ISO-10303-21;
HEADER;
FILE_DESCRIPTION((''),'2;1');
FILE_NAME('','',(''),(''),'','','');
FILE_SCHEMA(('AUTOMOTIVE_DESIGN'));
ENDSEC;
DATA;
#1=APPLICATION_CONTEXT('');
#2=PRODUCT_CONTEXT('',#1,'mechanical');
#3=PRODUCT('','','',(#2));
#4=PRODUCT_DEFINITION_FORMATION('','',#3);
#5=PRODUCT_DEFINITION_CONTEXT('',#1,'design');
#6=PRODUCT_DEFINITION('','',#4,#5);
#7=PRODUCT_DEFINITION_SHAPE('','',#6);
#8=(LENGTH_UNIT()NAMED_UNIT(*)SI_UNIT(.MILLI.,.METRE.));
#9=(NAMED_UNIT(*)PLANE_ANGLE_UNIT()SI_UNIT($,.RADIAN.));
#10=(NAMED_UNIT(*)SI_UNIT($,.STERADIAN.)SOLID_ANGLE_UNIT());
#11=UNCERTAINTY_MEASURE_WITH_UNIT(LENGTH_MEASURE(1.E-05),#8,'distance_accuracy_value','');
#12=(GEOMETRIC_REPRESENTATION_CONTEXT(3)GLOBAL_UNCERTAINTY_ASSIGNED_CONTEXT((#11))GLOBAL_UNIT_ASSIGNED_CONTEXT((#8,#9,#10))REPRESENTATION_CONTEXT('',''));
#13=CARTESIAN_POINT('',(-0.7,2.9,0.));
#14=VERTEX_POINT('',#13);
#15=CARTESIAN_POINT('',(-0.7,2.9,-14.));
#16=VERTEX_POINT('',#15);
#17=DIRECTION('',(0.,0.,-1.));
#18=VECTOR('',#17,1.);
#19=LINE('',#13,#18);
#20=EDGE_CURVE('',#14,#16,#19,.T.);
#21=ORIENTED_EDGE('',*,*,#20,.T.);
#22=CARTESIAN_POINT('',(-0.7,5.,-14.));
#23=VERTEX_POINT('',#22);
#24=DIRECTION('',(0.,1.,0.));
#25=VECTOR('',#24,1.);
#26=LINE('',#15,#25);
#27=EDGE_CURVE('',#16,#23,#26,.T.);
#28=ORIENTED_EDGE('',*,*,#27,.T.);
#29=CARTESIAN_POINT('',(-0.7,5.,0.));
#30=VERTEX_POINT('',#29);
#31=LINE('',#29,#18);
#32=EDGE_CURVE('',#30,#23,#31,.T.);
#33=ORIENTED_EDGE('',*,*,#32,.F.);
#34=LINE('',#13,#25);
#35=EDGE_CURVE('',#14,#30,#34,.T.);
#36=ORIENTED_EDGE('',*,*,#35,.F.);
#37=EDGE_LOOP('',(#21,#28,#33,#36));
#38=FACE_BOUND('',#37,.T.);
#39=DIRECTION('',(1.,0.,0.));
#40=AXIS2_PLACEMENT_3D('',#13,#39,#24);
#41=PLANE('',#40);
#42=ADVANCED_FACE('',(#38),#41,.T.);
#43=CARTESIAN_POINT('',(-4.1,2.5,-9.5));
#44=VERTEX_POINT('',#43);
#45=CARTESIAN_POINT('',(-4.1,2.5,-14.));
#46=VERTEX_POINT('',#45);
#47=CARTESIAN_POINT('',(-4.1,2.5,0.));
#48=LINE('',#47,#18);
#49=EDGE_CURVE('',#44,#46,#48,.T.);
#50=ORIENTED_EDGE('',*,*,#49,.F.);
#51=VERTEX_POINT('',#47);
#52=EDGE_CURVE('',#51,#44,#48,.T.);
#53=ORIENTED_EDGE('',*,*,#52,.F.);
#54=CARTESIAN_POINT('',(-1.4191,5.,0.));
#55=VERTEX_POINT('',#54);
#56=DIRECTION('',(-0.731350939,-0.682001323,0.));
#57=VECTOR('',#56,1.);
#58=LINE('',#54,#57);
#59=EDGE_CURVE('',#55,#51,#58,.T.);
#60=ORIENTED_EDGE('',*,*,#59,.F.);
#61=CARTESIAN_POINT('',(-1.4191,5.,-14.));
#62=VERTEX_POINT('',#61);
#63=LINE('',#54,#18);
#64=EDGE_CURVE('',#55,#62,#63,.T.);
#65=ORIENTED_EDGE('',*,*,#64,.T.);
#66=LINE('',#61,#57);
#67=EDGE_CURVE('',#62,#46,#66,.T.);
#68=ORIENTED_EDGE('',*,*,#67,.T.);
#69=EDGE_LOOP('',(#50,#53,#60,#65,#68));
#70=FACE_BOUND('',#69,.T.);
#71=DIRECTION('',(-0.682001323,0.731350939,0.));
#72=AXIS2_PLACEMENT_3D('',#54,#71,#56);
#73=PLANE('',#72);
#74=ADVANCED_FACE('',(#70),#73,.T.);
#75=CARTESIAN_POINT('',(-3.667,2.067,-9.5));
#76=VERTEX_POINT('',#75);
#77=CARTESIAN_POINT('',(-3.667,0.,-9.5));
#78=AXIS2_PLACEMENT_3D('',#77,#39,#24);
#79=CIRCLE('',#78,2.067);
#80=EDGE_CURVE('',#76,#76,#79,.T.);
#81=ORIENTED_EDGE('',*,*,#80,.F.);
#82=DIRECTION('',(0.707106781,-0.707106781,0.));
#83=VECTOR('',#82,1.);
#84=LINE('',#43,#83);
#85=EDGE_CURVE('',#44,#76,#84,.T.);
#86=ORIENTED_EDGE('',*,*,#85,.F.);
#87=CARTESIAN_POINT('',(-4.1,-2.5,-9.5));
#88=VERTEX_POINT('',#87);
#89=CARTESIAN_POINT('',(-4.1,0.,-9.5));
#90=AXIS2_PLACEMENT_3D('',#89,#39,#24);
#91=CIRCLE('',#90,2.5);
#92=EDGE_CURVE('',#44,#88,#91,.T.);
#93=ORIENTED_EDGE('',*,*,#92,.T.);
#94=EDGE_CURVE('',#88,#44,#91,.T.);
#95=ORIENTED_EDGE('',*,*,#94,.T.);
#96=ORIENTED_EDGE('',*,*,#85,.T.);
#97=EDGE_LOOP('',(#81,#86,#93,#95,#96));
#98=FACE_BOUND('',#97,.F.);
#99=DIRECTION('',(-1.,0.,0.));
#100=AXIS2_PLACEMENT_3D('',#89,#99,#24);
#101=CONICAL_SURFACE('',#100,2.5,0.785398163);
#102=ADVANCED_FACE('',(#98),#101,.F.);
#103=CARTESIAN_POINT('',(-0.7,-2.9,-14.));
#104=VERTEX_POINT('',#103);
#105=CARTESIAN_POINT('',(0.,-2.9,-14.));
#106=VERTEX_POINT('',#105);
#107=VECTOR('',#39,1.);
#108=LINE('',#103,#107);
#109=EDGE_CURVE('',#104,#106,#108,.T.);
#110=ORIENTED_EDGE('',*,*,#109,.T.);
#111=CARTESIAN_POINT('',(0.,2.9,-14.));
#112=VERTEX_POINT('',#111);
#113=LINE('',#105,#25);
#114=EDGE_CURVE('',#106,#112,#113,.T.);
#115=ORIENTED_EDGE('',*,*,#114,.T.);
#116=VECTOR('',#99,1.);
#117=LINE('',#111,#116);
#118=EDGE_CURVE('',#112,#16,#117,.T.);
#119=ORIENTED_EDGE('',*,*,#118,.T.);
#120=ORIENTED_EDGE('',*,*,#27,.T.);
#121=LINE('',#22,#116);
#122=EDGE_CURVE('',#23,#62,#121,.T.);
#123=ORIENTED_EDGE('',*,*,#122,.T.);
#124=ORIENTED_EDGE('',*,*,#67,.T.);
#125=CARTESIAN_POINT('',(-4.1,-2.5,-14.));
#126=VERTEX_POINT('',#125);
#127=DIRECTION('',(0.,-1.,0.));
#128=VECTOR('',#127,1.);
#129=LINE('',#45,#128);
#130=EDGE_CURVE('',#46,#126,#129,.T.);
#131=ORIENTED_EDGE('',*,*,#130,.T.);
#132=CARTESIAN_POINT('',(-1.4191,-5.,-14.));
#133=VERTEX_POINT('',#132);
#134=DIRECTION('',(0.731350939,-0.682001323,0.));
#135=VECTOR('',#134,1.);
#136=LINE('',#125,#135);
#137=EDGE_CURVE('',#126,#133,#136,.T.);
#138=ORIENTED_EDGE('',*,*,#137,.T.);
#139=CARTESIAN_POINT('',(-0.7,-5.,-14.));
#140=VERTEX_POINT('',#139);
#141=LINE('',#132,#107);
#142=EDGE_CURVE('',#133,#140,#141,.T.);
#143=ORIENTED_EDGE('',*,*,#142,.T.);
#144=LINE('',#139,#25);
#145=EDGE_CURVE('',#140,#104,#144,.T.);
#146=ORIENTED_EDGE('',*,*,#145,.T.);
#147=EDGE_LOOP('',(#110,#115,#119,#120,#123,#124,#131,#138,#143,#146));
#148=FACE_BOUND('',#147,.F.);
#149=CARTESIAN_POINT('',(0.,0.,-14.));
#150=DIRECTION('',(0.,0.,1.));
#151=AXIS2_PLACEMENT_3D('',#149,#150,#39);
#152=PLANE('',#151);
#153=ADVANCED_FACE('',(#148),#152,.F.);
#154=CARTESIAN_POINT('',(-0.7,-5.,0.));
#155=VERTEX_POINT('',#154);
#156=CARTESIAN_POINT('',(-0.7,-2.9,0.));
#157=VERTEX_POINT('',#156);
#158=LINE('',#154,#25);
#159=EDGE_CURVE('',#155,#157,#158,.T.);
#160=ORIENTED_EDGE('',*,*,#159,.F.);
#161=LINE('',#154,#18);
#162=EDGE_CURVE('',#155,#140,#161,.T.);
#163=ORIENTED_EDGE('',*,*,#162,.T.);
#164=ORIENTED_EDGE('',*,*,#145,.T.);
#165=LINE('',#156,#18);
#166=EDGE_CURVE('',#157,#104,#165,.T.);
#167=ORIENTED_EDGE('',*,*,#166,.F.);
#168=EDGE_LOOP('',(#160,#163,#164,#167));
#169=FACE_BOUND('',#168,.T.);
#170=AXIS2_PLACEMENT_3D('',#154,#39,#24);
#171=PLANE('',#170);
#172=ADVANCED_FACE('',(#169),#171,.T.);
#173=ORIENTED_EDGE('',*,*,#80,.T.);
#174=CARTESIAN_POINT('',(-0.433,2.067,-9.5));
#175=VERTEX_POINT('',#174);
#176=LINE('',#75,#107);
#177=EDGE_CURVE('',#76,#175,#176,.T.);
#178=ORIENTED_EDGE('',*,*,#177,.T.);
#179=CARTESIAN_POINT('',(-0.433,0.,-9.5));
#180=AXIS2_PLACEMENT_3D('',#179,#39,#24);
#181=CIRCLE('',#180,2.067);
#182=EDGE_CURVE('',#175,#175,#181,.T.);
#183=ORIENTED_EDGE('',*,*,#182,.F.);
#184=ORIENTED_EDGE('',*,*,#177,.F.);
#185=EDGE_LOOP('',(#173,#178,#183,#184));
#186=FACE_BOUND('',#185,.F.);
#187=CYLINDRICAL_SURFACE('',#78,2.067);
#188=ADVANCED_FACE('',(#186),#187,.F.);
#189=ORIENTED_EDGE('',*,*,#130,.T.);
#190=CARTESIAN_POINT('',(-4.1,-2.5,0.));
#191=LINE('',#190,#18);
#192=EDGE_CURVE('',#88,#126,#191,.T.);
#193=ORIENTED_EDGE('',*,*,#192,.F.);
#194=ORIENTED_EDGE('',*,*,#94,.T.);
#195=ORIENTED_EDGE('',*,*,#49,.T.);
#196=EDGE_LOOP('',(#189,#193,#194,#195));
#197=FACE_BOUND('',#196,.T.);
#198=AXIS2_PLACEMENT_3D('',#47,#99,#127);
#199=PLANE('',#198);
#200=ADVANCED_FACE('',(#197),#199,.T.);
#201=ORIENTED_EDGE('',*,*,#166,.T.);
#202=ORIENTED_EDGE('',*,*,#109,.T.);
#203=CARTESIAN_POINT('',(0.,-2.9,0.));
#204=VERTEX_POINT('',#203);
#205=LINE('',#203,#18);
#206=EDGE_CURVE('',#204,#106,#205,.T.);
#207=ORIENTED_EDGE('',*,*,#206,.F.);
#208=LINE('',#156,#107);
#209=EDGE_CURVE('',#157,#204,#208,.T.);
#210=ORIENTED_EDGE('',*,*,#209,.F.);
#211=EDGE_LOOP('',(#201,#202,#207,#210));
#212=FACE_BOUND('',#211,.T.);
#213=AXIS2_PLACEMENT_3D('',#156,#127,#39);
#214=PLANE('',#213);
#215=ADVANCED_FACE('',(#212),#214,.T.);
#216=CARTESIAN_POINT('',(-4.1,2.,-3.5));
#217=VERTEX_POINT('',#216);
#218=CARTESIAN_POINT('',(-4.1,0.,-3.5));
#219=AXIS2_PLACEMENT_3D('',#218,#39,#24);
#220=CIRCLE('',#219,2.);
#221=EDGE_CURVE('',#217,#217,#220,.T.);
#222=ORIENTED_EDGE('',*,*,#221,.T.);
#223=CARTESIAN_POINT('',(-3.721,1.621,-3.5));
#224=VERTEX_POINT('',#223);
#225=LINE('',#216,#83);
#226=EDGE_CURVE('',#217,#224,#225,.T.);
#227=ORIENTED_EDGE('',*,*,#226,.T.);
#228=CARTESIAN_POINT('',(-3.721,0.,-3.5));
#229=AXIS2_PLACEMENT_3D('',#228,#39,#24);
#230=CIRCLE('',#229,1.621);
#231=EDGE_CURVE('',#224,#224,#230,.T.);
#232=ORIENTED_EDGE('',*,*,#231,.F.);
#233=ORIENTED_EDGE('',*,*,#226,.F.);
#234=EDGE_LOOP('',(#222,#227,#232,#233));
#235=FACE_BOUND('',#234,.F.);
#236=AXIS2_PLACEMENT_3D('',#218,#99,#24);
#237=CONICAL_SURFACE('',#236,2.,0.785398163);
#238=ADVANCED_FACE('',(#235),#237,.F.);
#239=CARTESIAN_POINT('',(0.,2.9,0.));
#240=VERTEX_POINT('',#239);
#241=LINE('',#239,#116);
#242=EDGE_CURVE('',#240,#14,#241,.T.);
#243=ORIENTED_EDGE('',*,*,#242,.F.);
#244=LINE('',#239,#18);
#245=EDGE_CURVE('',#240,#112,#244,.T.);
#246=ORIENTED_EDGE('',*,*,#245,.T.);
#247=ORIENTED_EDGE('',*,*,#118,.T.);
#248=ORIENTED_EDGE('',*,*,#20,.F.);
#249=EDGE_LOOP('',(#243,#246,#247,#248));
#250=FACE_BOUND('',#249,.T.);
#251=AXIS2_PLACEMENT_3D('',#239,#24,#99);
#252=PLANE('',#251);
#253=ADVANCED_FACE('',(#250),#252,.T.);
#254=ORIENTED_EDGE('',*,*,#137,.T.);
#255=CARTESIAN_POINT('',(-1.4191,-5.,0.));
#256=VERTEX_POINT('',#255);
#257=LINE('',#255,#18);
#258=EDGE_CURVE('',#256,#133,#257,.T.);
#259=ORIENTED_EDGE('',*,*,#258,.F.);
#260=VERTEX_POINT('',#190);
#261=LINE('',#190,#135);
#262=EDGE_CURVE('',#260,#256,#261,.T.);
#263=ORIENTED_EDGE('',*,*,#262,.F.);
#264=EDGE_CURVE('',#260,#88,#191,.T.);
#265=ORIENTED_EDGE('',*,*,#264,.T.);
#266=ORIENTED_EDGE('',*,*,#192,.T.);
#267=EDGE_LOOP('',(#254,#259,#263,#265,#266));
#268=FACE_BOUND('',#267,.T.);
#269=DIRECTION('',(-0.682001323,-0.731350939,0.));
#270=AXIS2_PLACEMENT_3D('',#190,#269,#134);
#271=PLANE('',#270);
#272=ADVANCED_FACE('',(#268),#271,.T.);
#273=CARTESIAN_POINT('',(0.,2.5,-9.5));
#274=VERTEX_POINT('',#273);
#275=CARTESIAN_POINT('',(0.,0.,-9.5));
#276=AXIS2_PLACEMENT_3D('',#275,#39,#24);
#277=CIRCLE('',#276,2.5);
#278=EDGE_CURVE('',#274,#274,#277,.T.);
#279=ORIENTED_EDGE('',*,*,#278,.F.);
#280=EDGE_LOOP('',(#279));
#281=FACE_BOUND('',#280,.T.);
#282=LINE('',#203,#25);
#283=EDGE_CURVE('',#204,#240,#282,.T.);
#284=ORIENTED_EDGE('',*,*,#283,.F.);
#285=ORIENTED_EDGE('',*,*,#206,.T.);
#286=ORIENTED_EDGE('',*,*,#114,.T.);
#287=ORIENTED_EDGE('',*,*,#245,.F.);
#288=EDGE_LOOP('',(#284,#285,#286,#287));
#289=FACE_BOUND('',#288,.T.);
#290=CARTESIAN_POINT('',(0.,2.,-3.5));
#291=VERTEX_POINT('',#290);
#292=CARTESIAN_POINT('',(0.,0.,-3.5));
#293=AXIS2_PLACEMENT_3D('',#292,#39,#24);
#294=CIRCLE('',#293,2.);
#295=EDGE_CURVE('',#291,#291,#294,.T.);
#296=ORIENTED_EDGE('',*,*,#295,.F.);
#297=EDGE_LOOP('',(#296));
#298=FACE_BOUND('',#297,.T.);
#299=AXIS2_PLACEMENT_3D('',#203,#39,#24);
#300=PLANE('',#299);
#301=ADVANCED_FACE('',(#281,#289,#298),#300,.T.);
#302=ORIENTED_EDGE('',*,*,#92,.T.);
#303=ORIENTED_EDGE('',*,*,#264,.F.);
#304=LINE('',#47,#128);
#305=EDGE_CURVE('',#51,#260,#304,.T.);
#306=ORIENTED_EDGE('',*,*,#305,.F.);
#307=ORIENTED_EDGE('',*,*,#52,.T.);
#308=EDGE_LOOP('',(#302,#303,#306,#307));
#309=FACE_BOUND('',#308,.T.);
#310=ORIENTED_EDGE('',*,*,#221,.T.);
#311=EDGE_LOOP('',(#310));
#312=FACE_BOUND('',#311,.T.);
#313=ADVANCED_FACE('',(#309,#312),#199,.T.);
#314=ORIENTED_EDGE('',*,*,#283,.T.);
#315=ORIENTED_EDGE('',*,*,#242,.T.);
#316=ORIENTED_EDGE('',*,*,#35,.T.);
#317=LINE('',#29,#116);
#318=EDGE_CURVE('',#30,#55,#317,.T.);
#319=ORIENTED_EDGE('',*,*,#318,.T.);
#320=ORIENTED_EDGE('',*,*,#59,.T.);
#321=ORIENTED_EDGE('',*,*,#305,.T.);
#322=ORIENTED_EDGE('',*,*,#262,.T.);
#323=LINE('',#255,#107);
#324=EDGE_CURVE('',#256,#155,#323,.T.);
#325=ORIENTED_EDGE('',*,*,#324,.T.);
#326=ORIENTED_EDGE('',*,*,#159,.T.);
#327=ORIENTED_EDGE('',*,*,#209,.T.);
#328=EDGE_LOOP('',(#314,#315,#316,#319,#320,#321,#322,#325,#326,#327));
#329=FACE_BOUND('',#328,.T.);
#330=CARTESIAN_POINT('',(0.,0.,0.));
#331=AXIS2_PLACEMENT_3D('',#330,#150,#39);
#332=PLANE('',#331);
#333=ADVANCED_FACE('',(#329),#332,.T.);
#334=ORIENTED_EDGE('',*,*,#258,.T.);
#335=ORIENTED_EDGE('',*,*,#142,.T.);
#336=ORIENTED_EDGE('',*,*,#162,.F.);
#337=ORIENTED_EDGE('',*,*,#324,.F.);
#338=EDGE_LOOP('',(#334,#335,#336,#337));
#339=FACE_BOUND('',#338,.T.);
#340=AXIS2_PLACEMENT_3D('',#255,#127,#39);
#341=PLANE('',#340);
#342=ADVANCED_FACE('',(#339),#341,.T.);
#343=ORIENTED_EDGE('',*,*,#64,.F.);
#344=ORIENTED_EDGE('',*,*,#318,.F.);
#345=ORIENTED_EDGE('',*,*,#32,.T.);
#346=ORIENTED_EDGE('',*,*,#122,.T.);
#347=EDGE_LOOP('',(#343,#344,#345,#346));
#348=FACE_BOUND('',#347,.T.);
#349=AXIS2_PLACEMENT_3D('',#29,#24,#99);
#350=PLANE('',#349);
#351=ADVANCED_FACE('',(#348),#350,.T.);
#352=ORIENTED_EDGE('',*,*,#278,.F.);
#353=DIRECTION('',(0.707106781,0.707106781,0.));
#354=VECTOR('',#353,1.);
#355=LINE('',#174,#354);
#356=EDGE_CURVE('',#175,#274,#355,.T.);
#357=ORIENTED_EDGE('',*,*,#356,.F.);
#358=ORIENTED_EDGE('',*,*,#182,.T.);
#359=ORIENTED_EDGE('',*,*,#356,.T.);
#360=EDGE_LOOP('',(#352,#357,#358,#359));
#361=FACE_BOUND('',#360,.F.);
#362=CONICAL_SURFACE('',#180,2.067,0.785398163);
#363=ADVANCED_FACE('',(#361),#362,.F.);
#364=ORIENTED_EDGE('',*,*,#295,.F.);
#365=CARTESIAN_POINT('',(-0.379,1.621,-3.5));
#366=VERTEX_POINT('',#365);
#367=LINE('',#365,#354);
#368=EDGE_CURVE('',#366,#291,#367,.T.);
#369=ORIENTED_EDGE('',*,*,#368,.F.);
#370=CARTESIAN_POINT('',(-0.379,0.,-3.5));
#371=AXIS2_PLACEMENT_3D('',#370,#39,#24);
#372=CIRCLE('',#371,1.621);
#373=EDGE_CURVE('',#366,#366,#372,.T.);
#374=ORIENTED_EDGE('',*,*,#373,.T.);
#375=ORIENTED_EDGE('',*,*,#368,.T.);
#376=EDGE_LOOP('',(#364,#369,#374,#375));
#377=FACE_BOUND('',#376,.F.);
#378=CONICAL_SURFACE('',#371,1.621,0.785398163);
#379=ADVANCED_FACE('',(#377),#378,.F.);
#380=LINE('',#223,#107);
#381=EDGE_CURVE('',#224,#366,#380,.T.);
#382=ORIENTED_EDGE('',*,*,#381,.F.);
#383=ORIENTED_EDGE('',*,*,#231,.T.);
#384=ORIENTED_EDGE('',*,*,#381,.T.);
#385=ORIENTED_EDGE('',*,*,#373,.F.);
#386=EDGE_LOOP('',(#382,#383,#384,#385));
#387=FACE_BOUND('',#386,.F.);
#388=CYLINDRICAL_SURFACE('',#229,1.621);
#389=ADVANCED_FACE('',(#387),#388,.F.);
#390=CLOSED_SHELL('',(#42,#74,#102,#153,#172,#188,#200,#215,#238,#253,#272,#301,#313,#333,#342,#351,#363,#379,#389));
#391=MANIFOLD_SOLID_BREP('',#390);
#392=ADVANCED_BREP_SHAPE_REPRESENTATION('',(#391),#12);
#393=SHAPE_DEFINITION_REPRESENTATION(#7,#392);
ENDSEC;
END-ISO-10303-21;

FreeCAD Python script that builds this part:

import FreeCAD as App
import Part
import Sketcher
from FreeCAD import Vector
Q = App.Units.Quantity


def add_polygon(sketch, points):
    """Adds a closed chain of lines whose ends are joined by coincident constraints."""
    first, n = sketch.GeometryCount, len(points)
    for a, b in zip(points, points[1:] + points[:1]):
        sketch.addGeometry(Part.LineSegment(App.Vector(*a, 0), App.Vector(*b, 0)), False)
    for i in range(n):
        sketch.addConstraint(Sketcher.Constraint("Coincident", first + i, 2, first + (i + 1) % n, 1))

doc = App.newDocument("Part")
body = doc.addObject("PartDesign::Body", "Body")

# Sketch on XY plane
sketch1 = doc.addObject("Sketcher::SketchObject", "Sketch")
body.addObject(sketch1)
sketch1.AttachmentSupport = (doc.XY_Plane, [""])
sketch1.MapMode = "FlatFace"
add_polygon(sketch1, [(-4.1, 2.5), (-4.1, -2.5), (-1.4, -5), (-0.7, -5), (-0.7, -2.9), (0, -2.9), (0, 2.9), (-0.7, 2.9), (-0.7, 5), (-1.4, 5)])  # lines 0-9
sketch1.addConstraint(Sketcher.Constraint("Vertical", 0))
sketch1.addConstraint(Sketcher.Constraint("Horizontal", 2))
sketch1.addConstraint(Sketcher.Constraint("Vertical", 3))
sketch1.addConstraint(Sketcher.Constraint("Horizontal", 4))
sketch1.addConstraint(Sketcher.Constraint("Vertical", 5))
sketch1.addConstraint(Sketcher.Constraint("Horizontal", 6))
sketch1.addConstraint(Sketcher.Constraint("Vertical", 7))
sketch1.addConstraint(Sketcher.Constraint("Horizontal", 8))
sketch1.addConstraint(Sketcher.Constraint("Symmetric", 4, 2, 5, 2, -1, 1))
sketch1.addConstraint(Sketcher.Constraint("Symmetric", 2, 2, 7, 2, -1))
sketch1.addConstraint(Sketcher.Constraint("Vertical", 1, 2, 8, 2))
sketch1.addConstraint(Sketcher.Constraint("Equal", 1, 9))
sketch1.addConstraint(Sketcher.Constraint("DistanceY", 0, 2, 0, 1, 5.0))
sketch1.addConstraint(Sketcher.Constraint("Angle", 1, Q("-43.0002 deg")))
sketch1.addConstraint(Sketcher.Constraint("DistanceX", 4, 1, 4, 2, 0.7))
sketch1.addConstraint(Sketcher.Constraint("DistanceY", 3, 1, 3, 2, 2.1))
sketch1.addConstraint(Sketcher.Constraint("DistanceY", 5, 1, 5, 2, 5.8))
sketch1.addConstraint(Sketcher.Constraint("DistanceX", 0, 2, -1, 1, 4.1))
pad1 = doc.addObject("PartDesign::Pad", "Pad")
body.addObject(pad1)
pad1.Profile = sketch1
pad1.Length = 14
pad1.Reversed = True

# Sketch on XY plane
sketch2 = doc.addObject("Sketcher::SketchObject", "Sketch001")
body.addObject(sketch2)
sketch2.AttachmentSupport = (doc.XY_Plane, [""])
sketch2.MapMode = "FlatFace"
sketch2.AttachmentOffset = App.Placement(Vector(0, 0, -3.5), App.Rotation())
add_polygon(sketch2, [(-4.1, 0), (0, 0), (0, 2), (-0.4, 1.6), (-3.7, 1.6), (-4.1, 2)])  # lines 0-5
sketch2.addConstraint(Sketcher.Constraint("Horizontal", 0))
sketch2.addConstraint(Sketcher.Constraint("Vertical", 1))
sketch2.addConstraint(Sketcher.Constraint("Horizontal", 3))
sketch2.addConstraint(Sketcher.Constraint("Vertical", 5))
sketch2.addConstraint(Sketcher.Constraint("Coincident", 0, 2, -1, 1))
sketch2.addConstraint(Sketcher.Constraint("Perpendicular", 2, 4))
sketch2.addConstraint(Sketcher.Constraint("Horizontal", 1, 2, 4, 2))
sketch2.addConstraint(Sketcher.Constraint("Equal", 2, 4))
sketch2.addConstraint(Sketcher.Constraint("DistanceY", 1, 1, 1, 2, 2.0))
sketch2.addConstraint(Sketcher.Constraint("DistanceX", 0, 1, 0, 2, 4.1))
sketch2.addConstraint(Sketcher.Constraint("DistanceX", 3, 2, 3, 1, 3.342))
groove = doc.addObject("PartDesign::Groove", "Groove")
body.addObject(groove)
groove.Profile = sketch2
groove.ReferenceAxis = (sketch2, ["H_Axis"])
groove.Angle = 360

# Sketch on XY plane
sketch3 = doc.addObject("Sketcher::SketchObject", "Sketch002")
body.addObject(sketch3)
sketch3.AttachmentSupport = (doc.XY_Plane, [""])
sketch3.MapMode = "FlatFace"
sketch3.AttachmentOffset = App.Placement(Vector(0, 0, -9.5), App.Rotation())
add_polygon(sketch3, [(-4.1, 0), (0, 0), (0, 2.5), (-0.4, 2.1), (-3.7, 2.1), (-4.1, 2.5)])  # lines 0-5
sketch3.addConstraint(Sketcher.Constraint("Horizontal", 0))
sketch3.addConstraint(Sketcher.Constraint("Vertical", 1))
sketch3.addConstraint(Sketcher.Constraint("Horizontal", 3))
sketch3.addConstraint(Sketcher.Constraint("Vertical", 5))
sketch3.addConstraint(Sketcher.Constraint("Coincident", 0, 2, -1, 1))
sketch3.addConstraint(Sketcher.Constraint("Perpendicular", 2, 4))
sketch3.addConstraint(Sketcher.Constraint("Horizontal", 1, 2, 4, 2))
sketch3.addConstraint(Sketcher.Constraint("Equal", 2, 4))
sketch3.addConstraint(Sketcher.Constraint("DistanceX", 0, 1, 0, 2, 4.1))
sketch3.addConstraint(Sketcher.Constraint("DistanceY", 1, 1, 1, 2, 2.5))
sketch3.addConstraint(Sketcher.Constraint("DistanceX", 3, 2, 3, 1, 3.234))
groove2 = doc.addObject("PartDesign::Groove", "Groove001")
body.addObject(groove2)
groove2.Profile = sketch3
groove2.ReferenceAxis = (sketch3, ["H_Axis"])
groove2.Angle = 360

doc.recompute()
